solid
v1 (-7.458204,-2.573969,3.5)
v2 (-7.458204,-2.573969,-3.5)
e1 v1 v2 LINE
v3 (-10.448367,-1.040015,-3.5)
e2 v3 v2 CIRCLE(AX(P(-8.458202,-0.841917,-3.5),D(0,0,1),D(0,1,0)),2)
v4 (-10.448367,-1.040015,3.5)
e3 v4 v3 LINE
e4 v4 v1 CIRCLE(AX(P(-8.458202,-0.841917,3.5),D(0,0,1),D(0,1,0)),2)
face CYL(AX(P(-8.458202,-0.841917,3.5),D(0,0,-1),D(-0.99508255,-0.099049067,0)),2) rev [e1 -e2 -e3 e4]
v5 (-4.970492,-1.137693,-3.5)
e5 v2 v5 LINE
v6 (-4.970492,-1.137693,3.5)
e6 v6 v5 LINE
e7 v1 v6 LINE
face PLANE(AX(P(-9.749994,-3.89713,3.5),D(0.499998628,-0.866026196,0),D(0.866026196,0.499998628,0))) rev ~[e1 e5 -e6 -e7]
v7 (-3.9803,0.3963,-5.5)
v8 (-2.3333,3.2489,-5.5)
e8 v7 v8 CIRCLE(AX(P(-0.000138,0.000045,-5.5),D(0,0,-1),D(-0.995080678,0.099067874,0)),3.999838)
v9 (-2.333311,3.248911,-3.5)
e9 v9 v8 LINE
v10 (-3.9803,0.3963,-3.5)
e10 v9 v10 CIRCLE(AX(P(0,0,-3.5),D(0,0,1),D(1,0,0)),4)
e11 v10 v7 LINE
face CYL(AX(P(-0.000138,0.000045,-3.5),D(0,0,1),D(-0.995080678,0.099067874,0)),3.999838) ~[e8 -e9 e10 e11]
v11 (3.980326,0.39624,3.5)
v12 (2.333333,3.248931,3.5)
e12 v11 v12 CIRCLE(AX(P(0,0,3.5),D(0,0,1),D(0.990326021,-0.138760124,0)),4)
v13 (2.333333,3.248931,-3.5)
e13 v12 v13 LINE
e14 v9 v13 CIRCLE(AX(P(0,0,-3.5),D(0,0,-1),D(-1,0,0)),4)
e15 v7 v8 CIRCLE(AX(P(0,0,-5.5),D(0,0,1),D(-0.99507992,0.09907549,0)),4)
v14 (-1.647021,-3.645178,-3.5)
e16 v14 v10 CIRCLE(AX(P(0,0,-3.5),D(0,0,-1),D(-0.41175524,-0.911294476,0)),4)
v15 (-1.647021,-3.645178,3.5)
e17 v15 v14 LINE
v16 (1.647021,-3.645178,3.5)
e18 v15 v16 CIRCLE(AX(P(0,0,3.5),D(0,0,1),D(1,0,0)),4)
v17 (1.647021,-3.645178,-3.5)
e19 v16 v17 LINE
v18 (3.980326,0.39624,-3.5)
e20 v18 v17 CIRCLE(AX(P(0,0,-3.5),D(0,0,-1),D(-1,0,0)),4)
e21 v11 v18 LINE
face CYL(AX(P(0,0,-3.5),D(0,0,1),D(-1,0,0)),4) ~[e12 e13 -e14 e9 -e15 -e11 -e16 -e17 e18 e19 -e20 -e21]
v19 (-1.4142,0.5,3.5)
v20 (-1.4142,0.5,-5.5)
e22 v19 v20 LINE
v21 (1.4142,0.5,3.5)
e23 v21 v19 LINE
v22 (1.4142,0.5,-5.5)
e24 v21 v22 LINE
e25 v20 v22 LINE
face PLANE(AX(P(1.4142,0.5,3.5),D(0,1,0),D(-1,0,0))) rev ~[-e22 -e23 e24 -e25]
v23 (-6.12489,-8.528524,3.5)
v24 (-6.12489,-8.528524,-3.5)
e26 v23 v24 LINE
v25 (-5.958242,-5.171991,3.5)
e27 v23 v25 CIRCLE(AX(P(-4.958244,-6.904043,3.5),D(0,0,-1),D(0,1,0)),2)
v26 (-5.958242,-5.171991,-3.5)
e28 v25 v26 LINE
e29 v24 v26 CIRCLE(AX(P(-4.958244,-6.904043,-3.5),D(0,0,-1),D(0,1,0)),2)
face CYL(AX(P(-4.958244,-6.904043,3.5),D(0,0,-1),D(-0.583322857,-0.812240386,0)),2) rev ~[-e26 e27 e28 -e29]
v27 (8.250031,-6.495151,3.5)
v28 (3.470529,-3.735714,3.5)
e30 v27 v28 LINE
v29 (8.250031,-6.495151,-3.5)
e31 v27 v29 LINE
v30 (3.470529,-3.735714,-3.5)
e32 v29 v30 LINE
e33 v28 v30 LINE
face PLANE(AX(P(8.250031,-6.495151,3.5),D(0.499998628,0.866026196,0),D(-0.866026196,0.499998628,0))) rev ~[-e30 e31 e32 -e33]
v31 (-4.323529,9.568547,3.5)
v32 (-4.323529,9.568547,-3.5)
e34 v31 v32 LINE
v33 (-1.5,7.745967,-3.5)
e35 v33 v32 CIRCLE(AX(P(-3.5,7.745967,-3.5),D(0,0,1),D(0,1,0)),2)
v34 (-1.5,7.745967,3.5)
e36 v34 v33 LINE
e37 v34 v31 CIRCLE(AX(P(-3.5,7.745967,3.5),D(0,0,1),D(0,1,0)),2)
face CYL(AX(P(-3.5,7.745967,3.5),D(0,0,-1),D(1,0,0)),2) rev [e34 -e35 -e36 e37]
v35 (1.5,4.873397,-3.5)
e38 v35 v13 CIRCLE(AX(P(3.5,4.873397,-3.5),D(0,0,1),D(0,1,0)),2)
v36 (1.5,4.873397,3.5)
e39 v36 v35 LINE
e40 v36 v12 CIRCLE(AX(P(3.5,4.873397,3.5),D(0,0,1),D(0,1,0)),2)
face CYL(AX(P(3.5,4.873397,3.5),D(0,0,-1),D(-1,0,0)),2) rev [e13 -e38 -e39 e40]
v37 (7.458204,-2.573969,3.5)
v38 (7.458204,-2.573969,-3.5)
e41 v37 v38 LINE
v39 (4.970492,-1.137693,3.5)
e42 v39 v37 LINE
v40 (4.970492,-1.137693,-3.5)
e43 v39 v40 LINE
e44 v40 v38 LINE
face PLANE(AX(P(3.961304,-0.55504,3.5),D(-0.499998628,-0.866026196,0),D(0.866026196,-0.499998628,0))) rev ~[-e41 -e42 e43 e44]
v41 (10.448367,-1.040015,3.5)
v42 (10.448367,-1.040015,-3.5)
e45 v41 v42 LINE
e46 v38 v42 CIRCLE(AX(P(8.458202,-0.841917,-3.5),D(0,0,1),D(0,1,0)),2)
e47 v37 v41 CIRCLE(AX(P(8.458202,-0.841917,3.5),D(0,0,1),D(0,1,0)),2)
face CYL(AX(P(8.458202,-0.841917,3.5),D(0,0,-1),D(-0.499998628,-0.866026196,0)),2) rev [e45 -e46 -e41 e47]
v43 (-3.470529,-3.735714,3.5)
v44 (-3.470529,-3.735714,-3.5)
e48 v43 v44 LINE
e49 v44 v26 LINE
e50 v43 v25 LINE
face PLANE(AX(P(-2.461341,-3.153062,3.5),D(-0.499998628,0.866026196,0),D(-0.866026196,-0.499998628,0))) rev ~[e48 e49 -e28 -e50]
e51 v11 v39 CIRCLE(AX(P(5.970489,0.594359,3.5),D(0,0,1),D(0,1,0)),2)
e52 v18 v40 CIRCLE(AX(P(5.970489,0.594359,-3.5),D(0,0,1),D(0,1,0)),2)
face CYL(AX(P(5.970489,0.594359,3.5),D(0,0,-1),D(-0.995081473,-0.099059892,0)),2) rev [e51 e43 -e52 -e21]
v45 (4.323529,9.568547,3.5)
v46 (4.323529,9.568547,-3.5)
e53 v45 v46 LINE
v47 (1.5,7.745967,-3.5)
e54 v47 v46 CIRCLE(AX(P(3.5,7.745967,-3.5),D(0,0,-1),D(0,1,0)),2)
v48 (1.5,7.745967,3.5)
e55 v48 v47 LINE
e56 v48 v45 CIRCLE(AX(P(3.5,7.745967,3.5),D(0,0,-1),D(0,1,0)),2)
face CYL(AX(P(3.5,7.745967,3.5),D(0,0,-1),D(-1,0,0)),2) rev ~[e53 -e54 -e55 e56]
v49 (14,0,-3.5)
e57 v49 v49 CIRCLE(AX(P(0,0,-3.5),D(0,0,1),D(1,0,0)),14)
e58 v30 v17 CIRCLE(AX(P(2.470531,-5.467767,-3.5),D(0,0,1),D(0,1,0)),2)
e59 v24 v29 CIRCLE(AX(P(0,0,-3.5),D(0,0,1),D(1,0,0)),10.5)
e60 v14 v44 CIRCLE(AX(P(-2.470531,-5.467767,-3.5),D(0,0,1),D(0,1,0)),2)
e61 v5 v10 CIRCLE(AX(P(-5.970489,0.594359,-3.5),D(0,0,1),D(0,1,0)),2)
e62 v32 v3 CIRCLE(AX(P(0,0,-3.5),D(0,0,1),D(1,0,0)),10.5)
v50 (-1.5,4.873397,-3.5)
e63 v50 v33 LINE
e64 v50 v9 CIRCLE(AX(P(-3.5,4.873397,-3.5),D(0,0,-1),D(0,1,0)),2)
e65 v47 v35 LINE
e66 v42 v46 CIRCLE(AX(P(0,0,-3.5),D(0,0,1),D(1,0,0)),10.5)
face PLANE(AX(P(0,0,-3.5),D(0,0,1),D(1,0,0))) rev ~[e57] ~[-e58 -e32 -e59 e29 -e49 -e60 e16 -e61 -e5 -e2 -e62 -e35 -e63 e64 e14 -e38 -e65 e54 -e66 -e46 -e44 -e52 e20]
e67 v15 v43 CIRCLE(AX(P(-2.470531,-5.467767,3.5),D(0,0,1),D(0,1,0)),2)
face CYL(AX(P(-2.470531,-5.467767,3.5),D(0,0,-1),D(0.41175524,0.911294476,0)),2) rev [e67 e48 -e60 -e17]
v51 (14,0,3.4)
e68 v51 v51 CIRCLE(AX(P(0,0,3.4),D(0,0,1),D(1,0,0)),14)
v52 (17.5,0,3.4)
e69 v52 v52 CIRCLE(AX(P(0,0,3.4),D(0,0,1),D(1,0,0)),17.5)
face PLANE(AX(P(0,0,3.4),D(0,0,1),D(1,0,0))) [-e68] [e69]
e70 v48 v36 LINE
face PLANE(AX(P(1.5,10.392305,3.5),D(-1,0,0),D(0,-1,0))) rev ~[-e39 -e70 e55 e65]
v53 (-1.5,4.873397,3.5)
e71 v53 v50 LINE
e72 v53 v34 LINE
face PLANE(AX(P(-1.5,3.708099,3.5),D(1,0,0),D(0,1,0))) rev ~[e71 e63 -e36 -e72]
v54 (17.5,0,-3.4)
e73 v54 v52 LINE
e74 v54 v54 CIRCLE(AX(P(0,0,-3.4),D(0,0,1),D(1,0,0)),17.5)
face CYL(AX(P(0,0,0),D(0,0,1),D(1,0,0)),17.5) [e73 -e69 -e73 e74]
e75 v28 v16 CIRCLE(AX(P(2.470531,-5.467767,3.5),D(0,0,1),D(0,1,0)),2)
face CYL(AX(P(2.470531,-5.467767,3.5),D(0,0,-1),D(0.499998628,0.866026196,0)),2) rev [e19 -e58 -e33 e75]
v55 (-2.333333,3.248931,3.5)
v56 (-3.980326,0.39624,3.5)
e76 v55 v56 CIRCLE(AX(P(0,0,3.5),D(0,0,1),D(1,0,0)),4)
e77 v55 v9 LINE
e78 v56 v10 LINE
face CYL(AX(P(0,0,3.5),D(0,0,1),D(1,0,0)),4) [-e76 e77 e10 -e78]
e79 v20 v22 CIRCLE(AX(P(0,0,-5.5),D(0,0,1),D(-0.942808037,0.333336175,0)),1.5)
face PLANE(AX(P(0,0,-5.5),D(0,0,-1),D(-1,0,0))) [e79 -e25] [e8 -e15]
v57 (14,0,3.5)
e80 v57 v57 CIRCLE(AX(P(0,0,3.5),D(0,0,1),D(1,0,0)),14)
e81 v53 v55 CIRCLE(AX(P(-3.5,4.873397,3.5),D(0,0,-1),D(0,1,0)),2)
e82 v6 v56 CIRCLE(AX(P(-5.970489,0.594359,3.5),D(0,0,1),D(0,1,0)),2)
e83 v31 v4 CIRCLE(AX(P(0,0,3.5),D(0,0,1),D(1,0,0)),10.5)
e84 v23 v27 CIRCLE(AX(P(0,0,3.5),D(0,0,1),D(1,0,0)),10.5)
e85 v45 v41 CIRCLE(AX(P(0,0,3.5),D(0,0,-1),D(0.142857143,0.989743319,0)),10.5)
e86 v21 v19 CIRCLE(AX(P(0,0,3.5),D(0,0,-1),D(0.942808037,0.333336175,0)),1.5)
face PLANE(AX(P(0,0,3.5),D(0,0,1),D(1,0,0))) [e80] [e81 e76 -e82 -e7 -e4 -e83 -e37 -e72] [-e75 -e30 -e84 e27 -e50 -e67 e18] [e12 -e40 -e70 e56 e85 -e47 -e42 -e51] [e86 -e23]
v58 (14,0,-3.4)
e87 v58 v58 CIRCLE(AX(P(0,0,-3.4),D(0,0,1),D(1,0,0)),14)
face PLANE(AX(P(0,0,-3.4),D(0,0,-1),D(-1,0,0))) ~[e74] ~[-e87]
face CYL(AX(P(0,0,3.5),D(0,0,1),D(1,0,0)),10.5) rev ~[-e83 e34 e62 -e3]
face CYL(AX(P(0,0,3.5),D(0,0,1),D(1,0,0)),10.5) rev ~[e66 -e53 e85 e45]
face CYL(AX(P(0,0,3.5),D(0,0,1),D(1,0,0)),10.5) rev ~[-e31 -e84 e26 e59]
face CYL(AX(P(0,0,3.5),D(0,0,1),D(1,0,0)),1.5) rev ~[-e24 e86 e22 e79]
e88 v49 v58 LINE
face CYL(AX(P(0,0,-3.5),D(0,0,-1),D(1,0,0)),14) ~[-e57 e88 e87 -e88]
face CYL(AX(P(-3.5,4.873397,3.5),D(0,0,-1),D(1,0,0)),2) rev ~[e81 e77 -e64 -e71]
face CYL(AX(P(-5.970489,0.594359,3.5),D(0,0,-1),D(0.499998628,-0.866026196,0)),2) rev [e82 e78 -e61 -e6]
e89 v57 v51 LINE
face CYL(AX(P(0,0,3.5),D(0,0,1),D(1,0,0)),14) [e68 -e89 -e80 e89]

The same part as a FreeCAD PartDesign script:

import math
import FreeCAD as App
import Part
import Sketcher
from FreeCAD import Vector
Q = App.Units.Quantity


def edges_at(feature, points):
    """Names of the edges that pass closest to the given points."""
    edges = feature.Shape.Edges
    near = lambda p: min(range(len(edges)), key=lambda i: edges[i].distToShape(Part.Vertex(*p))[0])
    return sorted({f"Edge{near(p) + 1}" for p in points})

doc = App.newDocument("Part")
params = doc.addObject("Spreadsheet::Sheet", "Params")
for row, (alias, value) in enumerate([
    ("sketch1_diameter", "35 mm"),
    ("pad1_length", "7 mm"),
    ("sketch2_radius", "4 mm"),
    ("sketch2_radius2", "10.5 mm"),
    ("fillet_radius", "2 mm"),
    ("sketch3_radius", "4 mm"),
    ("pad2_length", "2 mm"),
    ("sketch4_radius", "1.5 mm"),
    ("sketch5_diameter", "28 mm"),
    ("sketch5_diameter2", "35 mm"),
    ("pocket3_length", "0.1 mm"),
], start=1):
    params.set(f"A{row}", alias)
    params.set(f"B{row}", "=" + value)
    params.setAlias(f"B{row}", alias)

body = doc.addObject("PartDesign::Body", "Body")

# Sketch on XY plane
sketch1 = body.newObject("Sketcher::SketchObject", "Sketch")
sketch1.AttachmentSupport = (doc.getObject("XY_Plane"), [""])
sketch1.MapMode = "FlatFace"
sketch1.addGeometry(Part.Circle(Vector(0, 0, 0), Vector(0, 0, 1), 18), False)
sketch1.addConstraint([
    Sketcher.Constraint("Coincident", 0, 3, -1, 1),
    Sketcher.Constraint("Diameter", 0, 35.0),
])
sketch1.setExpression("Constraints[1]", "Params.sketch1_diameter")
pad1 = body.newObject("PartDesign::Pad", "Pad")
pad1.Profile = sketch1
pad1.setExpression("Length", "Params.pad1_length")
pad1.Midplane = True

# Sketch on XY plane
sketch2 = body.newObject("Sketcher::SketchObject", "Sketch001")
sketch2.AttachmentSupport = (doc.getObject("XY_Plane"), [""])
sketch2.MapMode = "FlatFace"
sketch2.AttachmentOffset = App.Placement(Vector(0, 0, 3.5), App.Rotation())
sketch2.addGeometry([
    Part.ArcOfCircle(Part.Circle(Vector(0, 0, 0), Vector(0, 0, 1), 10.5), math.radians(-22), math.radians(82)),  # 0
    Part.LineSegment(Vector(1.5, 10.4, 0), Vector(1.5, 3.7, 0)),  # 1
    Part.ArcOfCircle(Part.Circle(Vector(0, 0, 0), Vector(0, 0, 1), 4), math.radians(-8), math.radians(68)),  # 2
    Part.LineSegment(Vector(4, -0.6, 0), Vector(9.7, -3.9, 0)),  # 3
    Part.ArcOfCircle(Part.Circle(Vector(0, 0, 0), Vector(0, 0, 1), 10.5), math.radians(-142), math.radians(-38)),  # 4
    Part.LineSegment(Vector(8.3, -6.5, 0), Vector(2.5, -3.2, 0)),  # 5
    Part.ArcOfCircle(Part.Circle(Vector(0, 0, 0), Vector(0, 0, 1), 4), math.radians(-128), math.radians(-52)),  # 6
    Part.LineSegment(Vector(-2.5, -3.2, 0), Vector(-8.3, -6.5, 0)),  # 7
    Part.LineSegment(Vector(-1.5, 3.7, 0), Vector(-1.5, 10.4, 0)),  # 8
    Part.ArcOfCircle(Part.Circle(Vector(0, 0, 0), Vector(0, 0, 1), 10.5), math.radians(98), math.radians(202)),  # 9
    Part.LineSegment(Vector(-9.7, -3.9, 0), Vector(-4, -0.6, 0)),  # 10
    Part.ArcOfCircle(Part.Circle(Vector(0, 0, 0), Vector(0, 0, 1), 4), math.radians(112), math.radians(188)),  # 11
], False)
sketch2.addConstraint([
    Sketcher.Constraint("Coincident", 0, 2, 1, 1),
    Sketcher.Constraint("Coincident", 1, 2, 2, 2),
    Sketcher.Constraint("Coincident", 2, 1, 3, 1),
    Sketcher.Constraint("Coincident", 3, 2, 0, 1),
    Sketcher.Constraint("Coincident", 4, 2, 5, 1),
    Sketcher.Constraint("Coincident", 5, 2, 6, 2),
    Sketcher.Constraint("Coincident", 6, 1, 7, 1),
    Sketcher.Constraint("Coincident", 7, 2, 4, 1),
    Sketcher.Constraint("Coincident", 8, 2, 9, 1),
    Sketcher.Constraint("Coincident", 9, 2, 10, 1),
    Sketcher.Constraint("Coincident", 10, 2, 11, 2),
    Sketcher.Constraint("Coincident", 11, 1, 8, 1),
    Sketcher.Constraint("Vertical", 1),
    Sketcher.Constraint("Vertical", 8),
    Sketcher.Constraint("Coincident", 0, 3, -1, 1),
    Sketcher.Constraint("Coincident", 2, 3, -1, 1),
    Sketcher.Constraint("Coincident", 4, 3, -1, 1),
    Sketcher.Constraint("Coincident", 6, 3, -1, 1),
    Sketcher.Constraint("Coincident", 9, 3, -1, 1),
    Sketcher.Constraint("Coincident", 11, 3, -1, 1),
    Sketcher.Constraint("Equal", 0, 4),
    Sketcher.Constraint("Equal", 2, 6),
    Sketcher.Constraint("Equal", 4, 9),
    Sketcher.Constraint("Equal", 6, 11),
    Sketcher.Constraint("Parallel", 3, 5),
    Sketcher.Constraint("Parallel", 7, 10),
    Sketcher.Constraint("Horizontal", 5, 2, 6, 1),
    Sketcher.Constraint("Horizontal", 4, 2, 7, 2),
    Sketcher.Constraint("Horizontal", 0, 2, 8, 2),
    Sketcher.Constraint("Horizontal", 3, 2, 9, 2),
    Sketcher.Constraint("Equal", 3, 5),
    Sketcher.Constraint("Radius", 2, 4.0),
    Sketcher.Constraint("Radius", 0, 10.5),
    Sketcher.Constraint("DistanceX", 8, 2, 0, 2, 3.0),
    Sketcher.Constraint("Angle", 3, Q("-30 deg")),
    Sketcher.Constraint("DistanceX", 4, 2, 3, 2, 1.5),
])
sketch2.setExpression("Constraints[31]", "Params.sketch2_radius")
sketch2.setExpression("Constraints[32]", "Params.sketch2_radius2")
pocket1 = body.newObject("PartDesign::Pocket", "Pocket")
pocket1.Profile = sketch2
pocket1.Type = "ThroughAll"
doc.recompute()

fillet = body.newObject("PartDesign::Fillet", "Fillet")
fillet.Base = (pocket1, edges_at(pocket1, [
    (1.5, 3.708, 0),
    (3.961, -0.555, 0),
    (9.75, -3.897, 0),
    (-8.25, -6.495, 0),
    (-9.75, -3.897, 0),
    (-3.961, -0.555, 0),
    (-1.5, 3.708, 0),
    (1.5, 10.392, 0),
    (-1.5, 10.392, 0),
    (-2.461, -3.153, 0),
    (2.461, -3.153, 0),
]))
fillet.setExpression("Radius", "Params.fillet_radius")

# Sketch on XY plane
sketch3 = body.newObject("Sketcher::SketchObject", "Sketch002")
sketch3.AttachmentSupport = (doc.getObject("XY_Plane"), [""])
sketch3.MapMode = "FlatFace"
sketch3.AttachmentOffset = App.Placement(Vector(0, 0, -3.5), App.Rotation())
sketch3.addGeometry([
    Part.ArcOfCircle(Part.Circle(Vector(0, 0, 0), Vector(0, 0, 1), 4), math.radians(174), math.radians(486)),
    Part.ArcOfCircle(Part.Circle(Vector(0, 0, 0), Vector(0, 0, 1), 4), math.radians(126), math.radians(174)),
], False)
sketch3.addConstraint([
    Sketcher.Constraint("Tangent", 0, 1, 1, 2),
    Sketcher.Constraint("Coincident", 1, 1, 0, 2),
    Sketcher.Constraint("Coincident", 0, 3, -1, 1),
    Sketcher.Constraint("Radius", 0, 4.0),
    Sketcher.Constraint("DistanceY", -1, 1, 1, 1, 3.249),
    Sketcher.Constraint("DistanceX", 0, 1, 1, 1, 1.647),
])
sketch3.setExpression("Constraints[3]", "Params.sketch3_radius")
pad2 = body.newObject("PartDesign::Pad", "Pad001")
pad2.Profile = sketch3
pad2.setExpression("Length", "Params.pad2_length")
pad2.Reversed = True

# Sketch on XY plane
sketch4 = body.newObject("Sketcher::SketchObject", "Sketch003")
sketch4.AttachmentSupport = (doc.getObject("XY_Plane"), [""])
sketch4.MapMode = "FlatFace"
sketch4.AttachmentOffset = App.Placement(Vector(0, 0, 3.5), App.Rotation())
sketch4.addGeometry([
    Part.ArcOfCircle(Part.Circle(Vector(0, 0, 0), Vector(0, 0, 1), 1.5), math.radians(161), math.radians(379)),
    Part.LineSegment(Vector(-1.4, 0.5, 0), Vector(1.4, 0.5, 0)),
], False)
sketch4.addConstraint([
    Sketcher.Constraint("Coincident", 0, 1, 1, 1),
    Sketcher.Constraint("Coincident", 1, 2, 0, 2),
    Sketcher.Constraint("Horizontal", 1),
    Sketcher.Constraint("Coincident", 0, 3, -1, 1),
    Sketcher.Constraint("Radius", 0, 1.5),
    Sketcher.Constraint("DistanceY", -1, 1, 0, 1, 0.5),
])
sketch4.setExpression("Constraints[4]", "Params.sketch4_radius")
pocket2 = body.newObject("PartDesign::Pocket", "Pocket001")
pocket2.Profile = sketch4
pocket2.Type = "ThroughAll"

# Sketch on XY plane
sketch5 = body.newObject("Sketcher::SketchObject", "Sketch004")
sketch5.AttachmentSupport = (doc.getObject("XY_Plane"), [""])
sketch5.MapMode = "FlatFace"
sketch5.AttachmentOffset = App.Placement(Vector(0, 0, 3.5), App.Rotation())
sketch5.addGeometry([
    Part.Circle(Vector(0, 0, 0), Vector(0, 0, 1), 18),
    Part.Circle(Vector(0, 0, 0), Vector(0, 0, 1), 14),
], False)
sketch5.addConstraint([
    Sketcher.Constraint("Coincident", 0, 3, -1, 1),
    Sketcher.Constraint("Coincident", 1, 3, -1, 1),
    Sketcher.Constraint("Diameter", 1, 28.0),
    Sketcher.Constraint("Diameter", 0, 35.0),
])
sketch5.setExpression("Constraints[2]", "Params.sketch5_diameter")
sketch5.setExpression("Constraints[3]", "Params.sketch5_diameter2")
pocket3 = body.newObject("PartDesign::Pocket", "Pocket002")
pocket3.Profile = sketch5
pocket3.setExpression("Length", "Params.pocket3_length")
doc.recompute()

mirrored = body.newObject("PartDesign::Mirrored", "Mirrored")
mirrored.Originals = [pocket3]
mirrored.MirrorPlane = (doc.getObject("XY_Plane"), [""])
body.Tip = mirrored

doc.recompute()
